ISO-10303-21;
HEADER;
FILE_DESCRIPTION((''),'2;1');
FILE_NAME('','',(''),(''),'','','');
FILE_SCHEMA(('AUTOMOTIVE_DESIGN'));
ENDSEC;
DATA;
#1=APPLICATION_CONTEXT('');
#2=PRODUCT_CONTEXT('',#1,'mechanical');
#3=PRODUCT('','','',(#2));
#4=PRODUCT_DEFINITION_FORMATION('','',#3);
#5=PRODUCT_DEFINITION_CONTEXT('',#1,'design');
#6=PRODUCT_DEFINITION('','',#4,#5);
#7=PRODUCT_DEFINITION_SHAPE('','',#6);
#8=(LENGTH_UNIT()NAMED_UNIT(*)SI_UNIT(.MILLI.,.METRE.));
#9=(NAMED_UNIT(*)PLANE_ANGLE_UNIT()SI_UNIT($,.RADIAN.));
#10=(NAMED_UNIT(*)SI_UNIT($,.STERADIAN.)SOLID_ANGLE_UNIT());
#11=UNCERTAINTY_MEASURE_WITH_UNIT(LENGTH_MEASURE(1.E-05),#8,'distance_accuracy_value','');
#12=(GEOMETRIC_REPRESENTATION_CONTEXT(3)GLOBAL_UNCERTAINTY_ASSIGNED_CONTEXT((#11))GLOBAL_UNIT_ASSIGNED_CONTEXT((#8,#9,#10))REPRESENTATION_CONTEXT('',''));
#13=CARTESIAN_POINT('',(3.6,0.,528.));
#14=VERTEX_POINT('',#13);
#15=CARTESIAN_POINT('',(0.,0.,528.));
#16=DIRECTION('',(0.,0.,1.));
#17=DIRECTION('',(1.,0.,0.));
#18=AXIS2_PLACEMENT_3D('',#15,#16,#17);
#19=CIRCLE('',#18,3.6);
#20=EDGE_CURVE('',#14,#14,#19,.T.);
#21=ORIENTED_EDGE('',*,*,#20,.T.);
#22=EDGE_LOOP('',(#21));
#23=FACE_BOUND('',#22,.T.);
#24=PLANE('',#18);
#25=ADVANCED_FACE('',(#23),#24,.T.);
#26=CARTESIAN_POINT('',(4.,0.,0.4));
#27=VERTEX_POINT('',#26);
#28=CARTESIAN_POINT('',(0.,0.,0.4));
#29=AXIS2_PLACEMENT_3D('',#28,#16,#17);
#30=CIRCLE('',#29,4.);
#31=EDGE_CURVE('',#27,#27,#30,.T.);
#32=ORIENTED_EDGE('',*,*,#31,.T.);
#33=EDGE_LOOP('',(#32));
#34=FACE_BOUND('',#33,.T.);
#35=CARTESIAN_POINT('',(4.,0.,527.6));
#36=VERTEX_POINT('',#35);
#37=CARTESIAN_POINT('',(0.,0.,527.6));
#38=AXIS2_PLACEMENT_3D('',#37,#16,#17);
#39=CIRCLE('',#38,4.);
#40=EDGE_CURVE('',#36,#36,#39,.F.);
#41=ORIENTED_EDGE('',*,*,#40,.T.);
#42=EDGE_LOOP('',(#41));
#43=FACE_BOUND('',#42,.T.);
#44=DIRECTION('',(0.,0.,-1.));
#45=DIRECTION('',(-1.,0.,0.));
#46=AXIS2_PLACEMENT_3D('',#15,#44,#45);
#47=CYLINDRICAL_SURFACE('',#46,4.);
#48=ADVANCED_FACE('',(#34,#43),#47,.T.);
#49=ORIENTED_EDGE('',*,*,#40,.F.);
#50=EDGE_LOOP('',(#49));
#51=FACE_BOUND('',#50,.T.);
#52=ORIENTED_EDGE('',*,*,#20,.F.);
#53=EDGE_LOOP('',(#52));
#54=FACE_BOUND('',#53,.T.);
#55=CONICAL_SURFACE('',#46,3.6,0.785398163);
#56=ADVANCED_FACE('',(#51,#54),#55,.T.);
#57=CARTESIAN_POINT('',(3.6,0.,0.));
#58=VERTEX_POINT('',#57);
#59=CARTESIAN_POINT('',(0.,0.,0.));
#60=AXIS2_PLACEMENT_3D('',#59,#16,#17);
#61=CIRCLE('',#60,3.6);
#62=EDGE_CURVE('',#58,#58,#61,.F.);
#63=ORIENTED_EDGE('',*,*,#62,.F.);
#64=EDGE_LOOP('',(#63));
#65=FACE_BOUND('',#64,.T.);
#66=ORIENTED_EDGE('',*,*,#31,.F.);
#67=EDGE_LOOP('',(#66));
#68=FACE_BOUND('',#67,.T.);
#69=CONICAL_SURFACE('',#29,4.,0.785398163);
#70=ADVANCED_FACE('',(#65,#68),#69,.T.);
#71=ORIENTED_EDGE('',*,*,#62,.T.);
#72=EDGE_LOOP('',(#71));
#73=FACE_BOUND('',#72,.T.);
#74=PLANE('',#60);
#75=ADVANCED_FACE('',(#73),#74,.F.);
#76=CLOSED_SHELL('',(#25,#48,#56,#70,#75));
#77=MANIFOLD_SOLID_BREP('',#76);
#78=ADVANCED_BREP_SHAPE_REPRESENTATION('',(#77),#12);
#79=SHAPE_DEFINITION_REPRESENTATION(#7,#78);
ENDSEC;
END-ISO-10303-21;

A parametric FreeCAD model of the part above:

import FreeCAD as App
import Part
import Sketcher


def edges_at(feature, points):
    """Names of the edges that pass closest to the given points."""
    edges = feature.Shape.Edges
    near = lambda p: min(range(len(edges)), key=lambda i: edges[i].distToShape(Part.Vertex(*p))[0])
    return sorted({f"Edge{near(p) + 1}" for p in points})

doc = App.newDocument("Part")
params = doc.addObject("Spreadsheet::Sheet", "Params")
for row, (alias, value) in enumerate([
    ("sketch1_diameter", "8 mm"),
    ("pad1_length", "528 mm"),
    ("chamfer_size", "0.4 mm"),
], start=1):
    params.set(f"A{row}", alias)
    params.set(f"B{row}", "=" + value)
    params.setAlias(f"B{row}", alias)

body = doc.addObject("PartDesign::Body", "Body")

sketch1 = body.newObject("Sketcher::SketchObject", "Sketch")
sketch1.AttachmentSupport = (doc.getObject("XY_Plane"), [""])
sketch1.MapMode = "FlatFace"
sketch1.addGeometry(Part.Circle(App.Vector(0, 0, 0), App.Vector(0, 0, 1), 4), False)
sketch1.addConstraint([
    Sketcher.Constraint("Coincident", 0, 3, -1, 1),
    Sketcher.Constraint("Diameter", 0, 8.0),
])
sketch1.setExpression("Constraints[1]", "Params.sketch1_diameter")
pad1 = body.newObject("PartDesign::Pad", "Pad")
pad1.Profile = sketch1
pad1.setExpression("Length", "Params.pad1_length")
doc.recompute()

chamfer = body.newObject("PartDesign::Chamfer", "Chamfer")
chamfer.Base = (pad1, edges_at(pad1, [(-4, 0, 0), (-4, 0, 528)]))
chamfer.setExpression("Size", "Params.chamfer_size")

doc.recompute()
